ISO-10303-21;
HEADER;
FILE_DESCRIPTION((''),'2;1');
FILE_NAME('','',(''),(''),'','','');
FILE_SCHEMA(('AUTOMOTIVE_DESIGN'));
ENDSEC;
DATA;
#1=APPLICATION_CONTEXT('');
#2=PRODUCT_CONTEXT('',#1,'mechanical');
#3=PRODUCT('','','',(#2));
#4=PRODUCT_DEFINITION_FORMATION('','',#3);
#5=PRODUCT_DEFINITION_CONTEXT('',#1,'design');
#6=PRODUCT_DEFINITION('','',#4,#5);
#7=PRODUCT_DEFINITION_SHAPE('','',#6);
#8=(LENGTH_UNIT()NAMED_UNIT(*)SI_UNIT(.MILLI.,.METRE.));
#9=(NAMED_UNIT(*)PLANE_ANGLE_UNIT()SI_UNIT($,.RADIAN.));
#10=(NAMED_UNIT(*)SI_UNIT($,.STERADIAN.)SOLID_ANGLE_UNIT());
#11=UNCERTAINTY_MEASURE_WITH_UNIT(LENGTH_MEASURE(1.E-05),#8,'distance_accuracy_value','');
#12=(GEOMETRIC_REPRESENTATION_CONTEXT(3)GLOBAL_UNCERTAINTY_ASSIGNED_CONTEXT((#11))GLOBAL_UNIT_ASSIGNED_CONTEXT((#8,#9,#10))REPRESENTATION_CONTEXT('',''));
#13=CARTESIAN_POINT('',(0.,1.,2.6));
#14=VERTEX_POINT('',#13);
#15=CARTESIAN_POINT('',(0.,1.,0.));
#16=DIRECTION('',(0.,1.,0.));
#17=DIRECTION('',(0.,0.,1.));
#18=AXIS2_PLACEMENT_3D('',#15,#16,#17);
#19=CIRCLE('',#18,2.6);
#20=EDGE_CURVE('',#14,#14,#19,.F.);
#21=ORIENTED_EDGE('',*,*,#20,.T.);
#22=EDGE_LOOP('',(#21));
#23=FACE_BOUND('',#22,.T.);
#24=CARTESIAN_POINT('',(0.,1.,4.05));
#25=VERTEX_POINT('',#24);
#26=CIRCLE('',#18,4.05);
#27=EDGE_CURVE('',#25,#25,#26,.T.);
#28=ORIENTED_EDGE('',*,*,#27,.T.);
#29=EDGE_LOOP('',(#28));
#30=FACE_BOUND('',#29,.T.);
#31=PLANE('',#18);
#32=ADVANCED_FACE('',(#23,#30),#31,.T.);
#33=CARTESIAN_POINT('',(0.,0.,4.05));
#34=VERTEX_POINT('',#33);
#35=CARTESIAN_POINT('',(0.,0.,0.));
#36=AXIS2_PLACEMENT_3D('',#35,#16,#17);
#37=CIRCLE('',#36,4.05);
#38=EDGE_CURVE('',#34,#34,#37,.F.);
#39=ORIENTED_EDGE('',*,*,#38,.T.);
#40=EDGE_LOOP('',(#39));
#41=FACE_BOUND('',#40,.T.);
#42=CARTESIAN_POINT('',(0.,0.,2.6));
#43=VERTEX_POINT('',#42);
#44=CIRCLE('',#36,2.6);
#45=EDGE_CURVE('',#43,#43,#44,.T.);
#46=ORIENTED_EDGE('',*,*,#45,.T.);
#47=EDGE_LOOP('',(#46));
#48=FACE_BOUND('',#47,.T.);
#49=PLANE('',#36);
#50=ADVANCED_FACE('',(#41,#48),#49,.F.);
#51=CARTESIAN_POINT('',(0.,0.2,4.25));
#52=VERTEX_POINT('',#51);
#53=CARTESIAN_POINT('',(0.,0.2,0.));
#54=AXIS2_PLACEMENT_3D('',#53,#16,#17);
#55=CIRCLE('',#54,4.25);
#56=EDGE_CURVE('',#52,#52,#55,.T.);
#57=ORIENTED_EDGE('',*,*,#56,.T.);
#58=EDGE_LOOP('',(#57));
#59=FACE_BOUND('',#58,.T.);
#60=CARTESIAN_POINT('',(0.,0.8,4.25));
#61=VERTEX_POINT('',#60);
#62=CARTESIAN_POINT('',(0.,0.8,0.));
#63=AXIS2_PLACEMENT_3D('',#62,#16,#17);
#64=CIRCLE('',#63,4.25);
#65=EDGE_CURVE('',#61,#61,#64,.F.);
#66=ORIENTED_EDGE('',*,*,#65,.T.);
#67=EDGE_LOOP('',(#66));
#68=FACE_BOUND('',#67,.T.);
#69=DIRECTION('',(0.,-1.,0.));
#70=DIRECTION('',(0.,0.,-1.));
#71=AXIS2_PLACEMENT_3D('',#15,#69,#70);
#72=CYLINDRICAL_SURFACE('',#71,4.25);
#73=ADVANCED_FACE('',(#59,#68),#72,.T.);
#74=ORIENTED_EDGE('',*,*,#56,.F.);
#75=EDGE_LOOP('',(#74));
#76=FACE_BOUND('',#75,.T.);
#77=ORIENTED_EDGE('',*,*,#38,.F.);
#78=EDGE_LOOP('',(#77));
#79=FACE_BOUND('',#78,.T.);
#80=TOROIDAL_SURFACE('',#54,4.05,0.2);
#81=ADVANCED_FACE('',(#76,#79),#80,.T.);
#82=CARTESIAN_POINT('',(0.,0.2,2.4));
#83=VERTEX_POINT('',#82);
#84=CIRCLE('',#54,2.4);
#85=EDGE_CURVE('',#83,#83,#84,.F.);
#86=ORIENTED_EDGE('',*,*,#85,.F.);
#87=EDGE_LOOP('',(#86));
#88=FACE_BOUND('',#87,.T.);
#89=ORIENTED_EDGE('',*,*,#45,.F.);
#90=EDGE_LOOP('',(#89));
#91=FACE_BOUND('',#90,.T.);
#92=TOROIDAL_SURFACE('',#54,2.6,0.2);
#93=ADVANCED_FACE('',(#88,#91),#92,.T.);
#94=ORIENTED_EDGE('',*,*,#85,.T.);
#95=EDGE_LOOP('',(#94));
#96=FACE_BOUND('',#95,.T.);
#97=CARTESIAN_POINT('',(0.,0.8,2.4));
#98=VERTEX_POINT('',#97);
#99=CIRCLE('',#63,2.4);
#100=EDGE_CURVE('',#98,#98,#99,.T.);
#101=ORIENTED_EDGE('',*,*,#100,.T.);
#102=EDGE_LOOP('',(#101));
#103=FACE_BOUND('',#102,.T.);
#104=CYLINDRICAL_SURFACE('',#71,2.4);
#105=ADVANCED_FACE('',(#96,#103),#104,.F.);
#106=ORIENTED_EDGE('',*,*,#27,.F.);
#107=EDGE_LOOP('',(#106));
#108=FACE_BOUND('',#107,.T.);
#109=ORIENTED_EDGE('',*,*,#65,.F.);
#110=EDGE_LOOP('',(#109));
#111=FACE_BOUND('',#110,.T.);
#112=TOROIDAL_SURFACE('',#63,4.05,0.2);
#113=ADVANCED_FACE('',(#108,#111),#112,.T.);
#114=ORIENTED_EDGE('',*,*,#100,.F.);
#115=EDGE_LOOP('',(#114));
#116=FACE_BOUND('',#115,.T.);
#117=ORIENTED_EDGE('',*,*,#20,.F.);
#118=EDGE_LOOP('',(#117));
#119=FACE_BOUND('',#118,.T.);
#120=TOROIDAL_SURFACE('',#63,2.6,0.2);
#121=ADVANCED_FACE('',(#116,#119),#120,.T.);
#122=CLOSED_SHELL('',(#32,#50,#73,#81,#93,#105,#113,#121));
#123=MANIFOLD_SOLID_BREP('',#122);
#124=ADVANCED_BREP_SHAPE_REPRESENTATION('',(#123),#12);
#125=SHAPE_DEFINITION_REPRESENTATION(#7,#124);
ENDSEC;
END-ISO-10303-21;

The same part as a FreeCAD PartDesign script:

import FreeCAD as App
import Part
import Sketcher
from FreeCAD import Vector


def edges_at(feature, points):
    """Names of the edges that pass closest to the given points."""
    edges = feature.Shape.Edges
    near = lambda p: min(range(len(edges)), key=lambda i: edges[i].distToShape(Part.Vertex(*p))[0])
    return sorted({f"Edge{near(p) + 1}" for p in points})

doc = App.newDocument("Part")
body = doc.addObject("PartDesign::Body", "Body")

sketch1 = doc.addObject("Sketcher::SketchObject", "Sketch")
body.addObject(sketch1)
sketch1.AttachmentSupport = (doc.XZ_Plane, [""])
sketch1.MapMode = "FlatFace"
sketch1.addGeometry([
    Part.Circle(Vector(0, 0, 0), Vector(0, 0, 1), 4.2),
    Part.Circle(Vector(0, 0, 0), Vector(0, 0, 1), 2.4),
], False)
sketch1.addConstraint([
    Sketcher.Constraint("Coincident", 0, 3, -1, 1),
    Sketcher.Constraint("Coincident", 1, 3, -1, 1),
    Sketcher.Constraint("Diameter", 0, 8.5),
    Sketcher.Constraint("Diameter", 1, 4.8),
])
pad1 = doc.addObject("PartDesign::Pad", "Pad")
body.addObject(pad1)
pad1.Profile = sketch1
pad1.Length = 1
pad1.Reversed = True
doc.recompute()

fillet = doc.addObject("PartDesign::Fillet", "Fillet")
body.addObject(fillet)
fillet.Base = (pad1, edges_at(pad1, [
    (-4.25, 0, 0),
    (-4.25, 1, 0),
    (-2.4, 0, 0),
    (-2.4, 1, 0),
]))
fillet.Radius = 0.2

doc.recompute()
